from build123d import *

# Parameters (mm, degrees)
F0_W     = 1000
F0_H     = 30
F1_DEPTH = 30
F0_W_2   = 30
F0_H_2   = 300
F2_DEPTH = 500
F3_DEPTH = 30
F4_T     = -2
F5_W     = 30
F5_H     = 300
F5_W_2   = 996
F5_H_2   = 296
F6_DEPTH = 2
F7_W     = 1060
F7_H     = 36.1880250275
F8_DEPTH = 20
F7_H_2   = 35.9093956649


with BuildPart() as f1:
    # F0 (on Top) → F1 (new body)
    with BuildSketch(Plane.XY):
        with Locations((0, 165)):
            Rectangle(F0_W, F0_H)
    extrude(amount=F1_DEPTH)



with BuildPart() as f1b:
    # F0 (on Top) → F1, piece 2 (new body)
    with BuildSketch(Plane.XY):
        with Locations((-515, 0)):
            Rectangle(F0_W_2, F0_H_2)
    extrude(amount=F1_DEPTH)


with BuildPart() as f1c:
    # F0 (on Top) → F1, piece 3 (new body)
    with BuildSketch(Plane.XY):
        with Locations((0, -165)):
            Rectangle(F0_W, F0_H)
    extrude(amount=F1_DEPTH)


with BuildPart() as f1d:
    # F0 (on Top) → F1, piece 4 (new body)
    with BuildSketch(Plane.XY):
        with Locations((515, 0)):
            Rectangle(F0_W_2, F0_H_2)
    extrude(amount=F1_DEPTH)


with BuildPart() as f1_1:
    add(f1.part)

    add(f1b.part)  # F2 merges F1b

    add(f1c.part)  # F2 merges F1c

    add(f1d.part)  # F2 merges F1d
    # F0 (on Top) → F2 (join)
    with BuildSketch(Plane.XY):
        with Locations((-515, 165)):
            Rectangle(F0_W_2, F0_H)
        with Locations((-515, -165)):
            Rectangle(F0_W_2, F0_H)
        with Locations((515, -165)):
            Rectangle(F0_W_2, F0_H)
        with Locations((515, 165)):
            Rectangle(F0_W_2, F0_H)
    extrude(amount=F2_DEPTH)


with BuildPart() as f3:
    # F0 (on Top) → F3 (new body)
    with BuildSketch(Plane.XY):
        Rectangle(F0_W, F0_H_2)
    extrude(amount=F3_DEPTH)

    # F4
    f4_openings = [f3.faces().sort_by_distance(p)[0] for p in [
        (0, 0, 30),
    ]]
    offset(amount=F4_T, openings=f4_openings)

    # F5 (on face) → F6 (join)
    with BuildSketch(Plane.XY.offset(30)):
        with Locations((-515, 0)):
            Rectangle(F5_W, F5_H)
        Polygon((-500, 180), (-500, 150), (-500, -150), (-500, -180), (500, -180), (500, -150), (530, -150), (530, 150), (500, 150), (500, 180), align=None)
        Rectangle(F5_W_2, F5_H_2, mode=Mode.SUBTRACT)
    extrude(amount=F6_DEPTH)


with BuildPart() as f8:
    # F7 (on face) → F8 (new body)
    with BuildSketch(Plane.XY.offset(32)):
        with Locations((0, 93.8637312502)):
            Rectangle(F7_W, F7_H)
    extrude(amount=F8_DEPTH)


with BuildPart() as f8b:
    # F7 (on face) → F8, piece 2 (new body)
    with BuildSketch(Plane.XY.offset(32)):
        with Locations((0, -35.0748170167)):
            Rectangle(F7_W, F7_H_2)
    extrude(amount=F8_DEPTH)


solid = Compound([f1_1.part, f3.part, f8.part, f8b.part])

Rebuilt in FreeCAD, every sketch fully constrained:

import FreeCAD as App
import Part
import Sketcher
from FreeCAD import Vector


def faces_at(feature, points):
    """Names of the faces that lie closest to the given points."""
    faces = feature.Shape.Faces
    near = lambda p: min(range(len(faces)), key=lambda i: faces[i].distToShape(Part.Vertex(*p))[0])
    return sorted({f"Face{near(p) + 1}" for p in points})

doc = App.newDocument("Part")
body = doc.addObject("PartDesign::Body", "Body")

# Sketch on XY plane
sketch1 = body.newObject("Sketcher::SketchObject", "Sketch")
sketch1.AttachmentSupport = (doc.getObject("XY_Plane"), [""])
sketch1.MapMode = "FlatFace"
sketch1.addGeometry([
    Part.LineSegment(Vector(-500, 180, 0), Vector(-500, 150, 0)),
    Part.LineSegment(Vector(-500, 150, 0), Vector(500, 150, 0)),
    Part.LineSegment(Vector(500, 150, 0), Vector(500, 180, 0)),
    Part.LineSegment(Vector(500, 180, 0), Vector(-500, 180, 0)),
], False)
sketch1.addConstraint([
    Sketcher.Constraint("Coincident", 0, 2, 1, 1),
    Sketcher.Constraint("Coincident", 1, 2, 2, 1),
    Sketcher.Constraint("Coincident", 2, 2, 3, 1),
    Sketcher.Constraint("Coincident", 3, 2, 0, 1),
    Sketcher.Constraint("Vertical", 0),
    Sketcher.Constraint("Horizontal", 1),
    Sketcher.Constraint("Vertical", 2),
    Sketcher.Constraint("Horizontal", 3),
    Sketcher.Constraint("DistanceX", 1, 1, 1, 2, 1000.0),
    Sketcher.Constraint("DistanceY", 0, 2, 0, 1, 30.0),
    Sketcher.Constraint("DistanceX", 0, 2, -1, 1, 500.0),
    Sketcher.Constraint("DistanceY", -1, 1, 0, 2, 150.0),
])
pad1 = body.newObject("PartDesign::Pad", "Pad")
pad1.Profile = sketch1
pad1.Length = 30
body2 = doc.addObject("PartDesign::Body", "Body001")

# Sketch on XY plane
sketch2 = body2.newObject("Sketcher::SketchObject", "Sketch001")
sketch2.AttachmentSupport = (doc.getObject("XY_Plane001"), [""])
sketch2.MapMode = "FlatFace"
sketch2.addGeometry([
    Part.LineSegment(Vector(-530, 150, 0), Vector(-530, -150, 0)),
    Part.LineSegment(Vector(-530, -150, 0), Vector(-500, -150, 0)),
    Part.LineSegment(Vector(-500, -150, 0), Vector(-500, 150, 0)),
    Part.LineSegment(Vector(-500, 150, 0), Vector(-530, 150, 0)),
], False)
sketch2.addConstraint([
    Sketcher.Constraint("Coincident", 0, 2, 1, 1),
    Sketcher.Constraint("Coincident", 1, 2, 2, 1),
    Sketcher.Constraint("Coincident", 2, 2, 3, 1),
    Sketcher.Constraint("Coincident", 3, 2, 0, 1),
    Sketcher.Constraint("Vertical", 0),
    Sketcher.Constraint("Horizontal", 1),
    Sketcher.Constraint("Vertical", 2),
    Sketcher.Constraint("Horizontal", 3),
    Sketcher.Constraint("DistanceX", 1, 1, 1, 2, 30.0),
    Sketcher.Constraint("DistanceY", 0, 2, 0, 1, 300.0),
    Sketcher.Constraint("DistanceX", 0, 2, -1, 1, 530.0),
    Sketcher.Constraint("DistanceY", 0, 2, -1, 1, 150.0),
])
pad2 = body2.newObject("PartDesign::Pad", "Pad001")
pad2.Profile = sketch2
pad2.Length = 30
body3 = doc.addObject("PartDesign::Body", "Body002")

# Sketch on XY plane
sketch3 = body3.newObject("Sketcher::SketchObject", "Sketch002")
sketch3.AttachmentSupport = (doc.getObject("XY_Plane002"), [""])
sketch3.MapMode = "FlatFace"
sketch3.addGeometry([
    Part.LineSegment(Vector(-500, -150, 0), Vector(-500, -180, 0)),
    Part.LineSegment(Vector(-500, -180, 0), Vector(500, -180, 0)),
    Part.LineSegment(Vector(500, -180, 0), Vector(500, -150, 0)),
    Part.LineSegment(Vector(500, -150, 0), Vector(-500, -150, 0)),
], False)
sketch3.addConstraint([
    Sketcher.Constraint("Coincident", 0, 2, 1, 1),
    Sketcher.Constraint("Coincident", 1, 2, 2, 1),
    Sketcher.Constraint("Coincident", 2, 2, 3, 1),
    Sketcher.Constraint("Coincident", 3, 2, 0, 1),
    Sketcher.Constraint("Vertical", 0),
    Sketcher.Constraint("Horizontal", 1),
    Sketcher.Constraint("Vertical", 2),
    Sketcher.Constraint("Horizontal", 3),
    Sketcher.Constraint("DistanceX", 1, 1, 1, 2, 1000.0),
    Sketcher.Constraint("DistanceY", 0, 2, 0, 1, 30.0),
    Sketcher.Constraint("DistanceX", 0, 2, -1, 1, 500.0),
    Sketcher.Constraint("DistanceY", 0, 2, -1, 1, 180.0),
])
pad3 = body3.newObject("PartDesign::Pad", "Pad002")
pad3.Profile = sketch3
pad3.Length = 30
body4 = doc.addObject("PartDesign::Body", "Body003")

# Sketch on XY plane
sketch4 = body4.newObject("Sketcher::SketchObject", "Sketch003")
sketch4.AttachmentSupport = (doc.getObject("XY_Plane003"), [""])
sketch4.MapMode = "FlatFace"
sketch4.addGeometry([
    Part.LineSegment(Vector(500, 150, 0), Vector(500, -150, 0)),
    Part.LineSegment(Vector(500, -150, 0), Vector(530, -150, 0)),
    Part.LineSegment(Vector(530, -150, 0), Vector(530, 150, 0)),
    Part.LineSegment(Vector(530, 150, 0), Vector(500, 150, 0)),
], False)
sketch4.addConstraint([
    Sketcher.Constraint("Coincident", 0, 2, 1, 1),
    Sketcher.Constraint("Coincident", 1, 2, 2, 1),
    Sketcher.Constraint("Coincident", 2, 2, 3, 1),
    Sketcher.Constraint("Coincident", 3, 2, 0, 1),
    Sketcher.Constraint("Vertical", 0),
    Sketcher.Constraint("Horizontal", 1),
    Sketcher.Constraint("Vertical", 2),
    Sketcher.Constraint("Horizontal", 3),
    Sketcher.Constraint("DistanceX", 1, 1, 1, 2, 30.0),
    Sketcher.Constraint("DistanceY", 0, 2, 0, 1, 300.0),
    Sketcher.Constraint("DistanceX", -1, 1, 0, 2, 500.0),
    Sketcher.Constraint("DistanceY", 0, 2, -1, 1, 150.0),
])
pad4 = body4.newObject("PartDesign::Pad", "Pad003")
pad4.Profile = sketch4
pad4.Length = 30
body.AllowCompound = True
doc.recompute()

boolean = body.newObject("PartDesign::Boolean", "Boolean")
boolean.Type = "Fuse"
boolean.addObjects([body2])
doc.recompute()

boolean2 = body.newObject("PartDesign::Boolean", "Boolean001")
boolean2.Type = "Fuse"
boolean2.addObjects([body3])
doc.recompute()

boolean3 = body.newObject("PartDesign::Boolean", "Boolean002")
boolean3.Type = "Fuse"
boolean3.addObjects([body4])

# Sketch on XY plane
sketch5 = body.newObject("Sketcher::SketchObject", "Sketch004")
sketch5.AttachmentSupport = (doc.getObject("XY_Plane"), [""])
sketch5.MapMode = "FlatFace"
sketch5.addGeometry([
    Part.LineSegment(Vector(-530, 180, 0), Vector(-530, 150, 0)),  # 0
    Part.LineSegment(Vector(-530, 150, 0), Vector(-500, 150, 0)),  # 1
    Part.LineSegment(Vector(-500, 150, 0), Vector(-500, 180, 0)),  # 2
    Part.LineSegment(Vector(-500, 180, 0), Vector(-530, 180, 0)),  # 3
    Part.LineSegment(Vector(-530, -150, 0), Vector(-530, -180, 0)),  # 4
    Part.LineSegment(Vector(-530, -180, 0), Vector(-500, -180, 0)),  # 5
    Part.LineSegment(Vector(-500, -180, 0), Vector(-500, -150, 0)),  # 6
    Part.LineSegment(Vector(-500, -150, 0), Vector(-530, -150, 0)),  # 7
    Part.LineSegment(Vector(500, -150, 0), Vector(500, -180, 0)),  # 8
    Part.LineSegment(Vector(500, -180, 0), Vector(530, -180, 0)),  # 9
    Part.LineSegment(Vector(530, -180, 0), Vector(530, -150, 0)),  # 10
    Part.LineSegment(Vector(530, -150, 0), Vector(500, -150, 0)),  # 11
    Part.LineSegment(Vector(500, 180, 0), Vector(500, 150, 0)),  # 12
    Part.LineSegment(Vector(500, 150, 0), Vector(530, 150, 0)),  # 13
    Part.LineSegment(Vector(530, 150, 0), Vector(530, 180, 0)),  # 14
    Part.LineSegment(Vector(530, 180, 0), Vector(500, 180, 0)),  # 15
], False)
sketch5.addConstraint([
    Sketcher.Constraint("Coincident", 0, 2, 1, 1),
    Sketcher.Constraint("Coincident", 1, 2, 2, 1),
    Sketcher.Constraint("Coincident", 2, 2, 3, 1),
    Sketcher.Constraint("Coincident", 3, 2, 0, 1),
    Sketcher.Constraint("Coincident", 4, 2, 5, 1),
    Sketcher.Constraint("Coincident", 5, 2, 6, 1),
    Sketcher.Constraint("Coincident", 6, 2, 7, 1),
    Sketcher.Constraint("Coincident", 7, 2, 4, 1),
    Sketcher.Constraint("Coincident", 8, 2, 9, 1),
    Sketcher.Constraint("Coincident", 9, 2, 10, 1),
    Sketcher.Constraint("Coincident", 10, 2, 11, 1),
    Sketcher.Constraint("Coincident", 11, 2, 8, 1),
    Sketcher.Constraint("Coincident", 12, 2, 13, 1),
    Sketcher.Constraint("Coincident", 13, 2, 14, 1),
    Sketcher.Constraint("Coincident", 14, 2, 15, 1),
    Sketcher.Constraint("Coincident", 15, 2, 12, 1),
    Sketcher.Constraint("Vertical", 0),
    Sketcher.Constraint("Horizontal", 1),
    Sketcher.Constraint("Vertical", 2),
    Sketcher.Constraint("Horizontal", 3),
    Sketcher.Constraint("Vertical", 4),
    Sketcher.Constraint("Horizontal", 5),
    Sketcher.Constraint("Vertical", 6),
    Sketcher.Constraint("Horizontal", 7),
    Sketcher.Constraint("Vertical", 8),
    Sketcher.Constraint("Horizontal", 9),
    Sketcher.Constraint("Vertical", 10),
    Sketcher.Constraint("Horizontal", 11),
    Sketcher.Constraint("Vertical", 12),
    Sketcher.Constraint("Horizontal", 13),
    Sketcher.Constraint("Vertical", 14),
    Sketcher.Constraint("Horizontal", 15),
    Sketcher.Constraint("Symmetric", 2, 2, 8, 2, -1, 1),
    Sketcher.Constraint("Symmetric", 0, 2, 10, 2, -1, 1),
    Sketcher.Constraint("Symmetric", 6, 2, 12, 2, -1, 1),
    Sketcher.Constraint("Symmetric", 4, 2, 14, 2, -1, 1),
    Sketcher.Constraint("Symmetric", 5, 2, 8, 2, -2),
    Sketcher.Constraint("Symmetric", 7, 2, 10, 2, -2),
    Sketcher.Constraint("Equal", 15, 0),
    Sketcher.Constraint("DistanceX", 1, 1, 1, 2, 30.0),
    Sketcher.Constraint("DistanceX", 0, 2, -1, 1, 530.0),
    Sketcher.Constraint("DistanceY", -1, 1, 0, 2, 150.0),
])
pad5 = body.newObject("PartDesign::Pad", "Pad004")
pad5.Profile = sketch5
pad5.Length = 500
body5 = doc.addObject("PartDesign::Body", "Body004")

# Sketch on XY plane
sketch6 = body5.newObject("Sketcher::SketchObject", "Sketch005")
sketch6.AttachmentSupport = (doc.getObject("XY_Plane004"), [""])
sketch6.MapMode = "FlatFace"
sketch6.addGeometry([
    Part.LineSegment(Vector(-500, 150, 0), Vector(-500, -150, 0)),
    Part.LineSegment(Vector(-500, -150, 0), Vector(500, -150, 0)),
    Part.LineSegment(Vector(500, -150, 0), Vector(500, 150, 0)),
    Part.LineSegment(Vector(500, 150, 0), Vector(-500, 150, 0)),
], False)
sketch6.addConstraint([
    Sketcher.Constraint("Coincident", 0, 2, 1, 1),
    Sketcher.Constraint("Coincident", 1, 2, 2, 1),
    Sketcher.Constraint("Coincident", 2, 2, 3, 1),
    Sketcher.Constraint("Coincident", 3, 2, 0, 1),
    Sketcher.Constraint("Vertical", 0),
    Sketcher.Constraint("Horizontal", 1),
    Sketcher.Constraint("Vertical", 2),
    Sketcher.Constraint("Horizontal", 3),
    Sketcher.Constraint("Symmetric", 0, 2, 2, 2, -1, 1),
    Sketcher.Constraint("DistanceX", 1, 1, 1, 2, 1000.0),
    Sketcher.Constraint("DistanceY", 0, 2, 0, 1, 300.0),
])
pad6 = body5.newObject("PartDesign::Pad", "Pad005")
pad6.Profile = sketch6
pad6.Length = 30
doc.recompute()

thickness = body5.newObject("PartDesign::Thickness", "Thickness")
thickness.Base = (pad6, faces_at(pad6, [(0, 0, 30)]))
thickness.Value = 2
thickness.Reversed = True
thickness.Join = "Arc"

# Sketch on XY plane
sketch7 = body5.newObject("Sketcher::SketchObject", "Sketch006")
sketch7.AttachmentSupport = (doc.getObject("XY_Plane004"), [""])
sketch7.MapMode = "FlatFace"
sketch7.AttachmentOffset = App.Placement(Vector(0, 0, 30), App.Rotation())
sketch7.addGeometry([
    Part.LineSegment(Vector(-530, 150, 0), Vector(-530, -150, 0)),  # 0
    Part.LineSegment(Vector(-530, -150, 0), Vector(-500, -150, 0)),  # 1
    Part.LineSegment(Vector(-500, -150, 0), Vector(-500, -180, 0)),  # 2
    Part.LineSegment(Vector(-500, -180, 0), Vector(500, -180, 0)),  # 3
    Part.LineSegment(Vector(500, -180, 0), Vector(500, -150, 0)),  # 4
    Part.LineSegment(Vector(500, -150, 0), Vector(530, -150, 0)),  # 5
    Part.LineSegment(Vector(530, -150, 0), Vector(530, 150, 0)),  # 6
    Part.LineSegment(Vector(530, 150, 0), Vector(500, 150, 0)),  # 7
    Part.LineSegment(Vector(500, 150, 0), Vector(500, 180, 0)),  # 8
    Part.LineSegment(Vector(500, 180, 0), Vector(-500, 180, 0)),  # 9
    Part.LineSegment(Vector(-500, 180, 0), Vector(-500, 150, 0)),  # 10
    Part.LineSegment(Vector(-500, 150, 0), Vector(-530, 150, 0)),  # 11
    Part.LineSegment(Vector(498, -148, 0), Vector(-498, -148, 0)),  # 12
    Part.LineSegment(Vector(-498, -148, 0), Vector(-498, 148, 0)),  # 13
    Part.LineSegment(Vector(-498, 148, 0), Vector(498, 148, 0)),  # 14
    Part.LineSegment(Vector(498, 148, 0), Vector(498, -148, 0)),  # 15
], False)
sketch7.addConstraint([
    Sketcher.Constraint("Coincident", 0, 2, 1, 1),
    Sketcher.Constraint("Coincident", 1, 2, 2, 1),
    Sketcher.Constraint("Coincident", 2, 2, 3, 1),
    Sketcher.Constraint("Coincident", 3, 2, 4, 1),
    Sketcher.Constraint("Coincident", 4, 2, 5, 1),
    Sketcher.Constraint("Coincident", 5, 2, 6, 1),
    Sketcher.Constraint("Coincident", 6, 2, 7, 1),
    Sketcher.Constraint("Coincident", 7, 2, 8, 1),
    Sketcher.Constraint("Coincident", 8, 2, 9, 1),
    Sketcher.Constraint("Coincident", 9, 2, 10, 1),
    Sketcher.Constraint("Coincident", 10, 2, 11, 1),
    Sketcher.Constraint("Coincident", 11, 2, 0, 1),
    Sketcher.Constraint("Coincident", 12, 2, 13, 1),
    Sketcher.Constraint("Coincident", 13, 2, 14, 1),
    Sketcher.Constraint("Coincident", 14, 2, 15, 1),
    Sketcher.Constraint("Coincident", 15, 2, 12, 1),
    Sketcher.Constraint("Vertical", 0),
    Sketcher.Constraint("Horizontal", 1),
    Sketcher.Constraint("Vertical", 2),
    Sketcher.Constraint("Horizontal", 3),
    Sketcher.Constraint("Vertical", 4),
    Sketcher.Constraint("Horizontal", 5),
    Sketcher.Constraint("Vertical", 6),
    Sketcher.Constraint("Horizontal", 7),
    Sketcher.Constraint("Vertical", 8),
    Sketcher.Constraint("Horizontal", 9),
    Sketcher.Constraint("Vertical", 10),
    Sketcher.Constraint("Horizontal", 11),
    Sketcher.Constraint("Horizontal", 12),
    Sketcher.Constraint("Vertical", 13),
    Sketcher.Constraint("Horizontal", 14),
    Sketcher.Constraint("Vertical", 15),
    Sketcher.Constraint("Symmetric", 0, 2, 6, 2, -1, 1),
    Sketcher.Constraint("Symmetric", 2, 2, 8, 2, -1, 1),
    Sketcher.Constraint("Symmetric", 4, 2, 10, 2, -1, 1),
    Sketcher.Constraint("Symmetric", 12, 2, 14, 2, -1, 1),
    Sketcher.Constraint("Symmetric", 1, 2, 4, 2, -2),
    Sketcher.Constraint("Equal", 11, 2),
    Sketcher.Constraint("DistanceX", 1, 1, 1, 2, 30.0),
    Sketcher.Constraint("DistanceX", 3, 1, 3, 2, 1000.0),
    Sketcher.Constraint("DistanceX", 12, 2, 12, 1, 996.0),
    Sketcher.Constraint("DistanceY", 0, 2, 0, 1, 300.0),
    Sketcher.Constraint("DistanceY", 13, 1, 13, 2, 296.0),
])
pad7 = body5.newObject("PartDesign::Pad", "Pad006")
pad7.Profile = sketch7
pad7.Length = 2
body6 = doc.addObject("PartDesign::Body", "Body005")

# Sketch on XY plane
sketch8 = body6.newObject("Sketcher::SketchObject", "Sketch007")
sketch8.AttachmentSupport = (doc.getObject("XY_Plane005"), [""])
sketch8.MapMode = "FlatFace"
sketch8.AttachmentOffset = App.Placement(Vector(0, 0, 32), App.Rotation())
sketch8.addGeometry([
    Part.LineSegment(Vector(-530, 112, 0), Vector(-530, 76, 0)),
    Part.LineSegment(Vector(-530, 76, 0), Vector(530, 76, 0)),
    Part.LineSegment(Vector(530, 76, 0), Vector(530, 112, 0)),
    Part.LineSegment(Vector(530, 112, 0), Vector(-530, 112, 0)),
], False)
sketch8.addConstraint([
    Sketcher.Constraint("Coincident", 0, 2, 1, 1),
    Sketcher.Constraint("Coincident", 1, 2, 2, 1),
    Sketcher.Constraint("Coincident", 2, 2, 3, 1),
    Sketcher.Constraint("Coincident", 3, 2, 0, 1),
    Sketcher.Constraint("Vertical", 0),
    Sketcher.Constraint("Horizontal", 1),
    Sketcher.Constraint("Vertical", 2),
    Sketcher.Constraint("Horizontal", 3),
    Sketcher.Constraint("DistanceX", 1, 1, 1, 2, 1060.0),
    Sketcher.Constraint("DistanceX", 0, 2, -1, 1, 530.0),
    Sketcher.Constraint("DistanceY", 0, 2, 0, 1, 36.188025),
    Sketcher.Constraint("DistanceY", -1, 1, 0, 2, 75.769719),
])
pad8 = body6.newObject("PartDesign::Pad", "Pad007")
pad8.Profile = sketch8
pad8.Length = 20
body7 = doc.addObject("PartDesign::Body", "Body006")

# Sketch on XY plane
sketch9 = body7.newObject("Sketcher::SketchObject", "Sketch008")
sketch9.AttachmentSupport = (doc.getObject("XY_Plane006"), [""])
sketch9.MapMode = "FlatFace"
sketch9.AttachmentOffset = App.Placement(Vector(0, 0, 32), App.Rotation())
sketch9.addGeometry([
    Part.LineSegment(Vector(-530, -17, 0), Vector(-530, -53, 0)),
    Part.LineSegment(Vector(-530, -53, 0), Vector(530, -53, 0)),
    Part.LineSegment(Vector(530, -53, 0), Vector(530, -17, 0)),
    Part.LineSegment(Vector(530, -17, 0), Vector(-530, -17, 0)),
], False)
sketch9.addConstraint([
    Sketcher.Constraint("Coincident", 0, 2, 1, 1),
    Sketcher.Constraint("Coincident", 1, 2, 2, 1),
    Sketcher.Constraint("Coincident", 2, 2, 3, 1),
    Sketcher.Constraint("Coincident", 3, 2, 0, 1),
    Sketcher.Constraint("Vertical", 0),
    Sketcher.Constraint("Horizontal", 1),
    Sketcher.Constraint("Vertical", 2),
    Sketcher.Constraint("Horizontal", 3),
    Sketcher.Constraint("DistanceX", 1, 1, 1, 2, 1060.0),
    Sketcher.Constraint("DistanceX", 0, 2, -1, 1, 530.0),
    Sketcher.Constraint("DistanceY", 0, 2, 0, 1, 35.909396),
    Sketcher.Constraint("DistanceY", 2, 2, -1, 1, 17.120119),
])
pad9 = body7.newObject("PartDesign::Pad", "Pad008")
pad9.Profile = sketch9
pad9.Length = 20

doc.recompute()
